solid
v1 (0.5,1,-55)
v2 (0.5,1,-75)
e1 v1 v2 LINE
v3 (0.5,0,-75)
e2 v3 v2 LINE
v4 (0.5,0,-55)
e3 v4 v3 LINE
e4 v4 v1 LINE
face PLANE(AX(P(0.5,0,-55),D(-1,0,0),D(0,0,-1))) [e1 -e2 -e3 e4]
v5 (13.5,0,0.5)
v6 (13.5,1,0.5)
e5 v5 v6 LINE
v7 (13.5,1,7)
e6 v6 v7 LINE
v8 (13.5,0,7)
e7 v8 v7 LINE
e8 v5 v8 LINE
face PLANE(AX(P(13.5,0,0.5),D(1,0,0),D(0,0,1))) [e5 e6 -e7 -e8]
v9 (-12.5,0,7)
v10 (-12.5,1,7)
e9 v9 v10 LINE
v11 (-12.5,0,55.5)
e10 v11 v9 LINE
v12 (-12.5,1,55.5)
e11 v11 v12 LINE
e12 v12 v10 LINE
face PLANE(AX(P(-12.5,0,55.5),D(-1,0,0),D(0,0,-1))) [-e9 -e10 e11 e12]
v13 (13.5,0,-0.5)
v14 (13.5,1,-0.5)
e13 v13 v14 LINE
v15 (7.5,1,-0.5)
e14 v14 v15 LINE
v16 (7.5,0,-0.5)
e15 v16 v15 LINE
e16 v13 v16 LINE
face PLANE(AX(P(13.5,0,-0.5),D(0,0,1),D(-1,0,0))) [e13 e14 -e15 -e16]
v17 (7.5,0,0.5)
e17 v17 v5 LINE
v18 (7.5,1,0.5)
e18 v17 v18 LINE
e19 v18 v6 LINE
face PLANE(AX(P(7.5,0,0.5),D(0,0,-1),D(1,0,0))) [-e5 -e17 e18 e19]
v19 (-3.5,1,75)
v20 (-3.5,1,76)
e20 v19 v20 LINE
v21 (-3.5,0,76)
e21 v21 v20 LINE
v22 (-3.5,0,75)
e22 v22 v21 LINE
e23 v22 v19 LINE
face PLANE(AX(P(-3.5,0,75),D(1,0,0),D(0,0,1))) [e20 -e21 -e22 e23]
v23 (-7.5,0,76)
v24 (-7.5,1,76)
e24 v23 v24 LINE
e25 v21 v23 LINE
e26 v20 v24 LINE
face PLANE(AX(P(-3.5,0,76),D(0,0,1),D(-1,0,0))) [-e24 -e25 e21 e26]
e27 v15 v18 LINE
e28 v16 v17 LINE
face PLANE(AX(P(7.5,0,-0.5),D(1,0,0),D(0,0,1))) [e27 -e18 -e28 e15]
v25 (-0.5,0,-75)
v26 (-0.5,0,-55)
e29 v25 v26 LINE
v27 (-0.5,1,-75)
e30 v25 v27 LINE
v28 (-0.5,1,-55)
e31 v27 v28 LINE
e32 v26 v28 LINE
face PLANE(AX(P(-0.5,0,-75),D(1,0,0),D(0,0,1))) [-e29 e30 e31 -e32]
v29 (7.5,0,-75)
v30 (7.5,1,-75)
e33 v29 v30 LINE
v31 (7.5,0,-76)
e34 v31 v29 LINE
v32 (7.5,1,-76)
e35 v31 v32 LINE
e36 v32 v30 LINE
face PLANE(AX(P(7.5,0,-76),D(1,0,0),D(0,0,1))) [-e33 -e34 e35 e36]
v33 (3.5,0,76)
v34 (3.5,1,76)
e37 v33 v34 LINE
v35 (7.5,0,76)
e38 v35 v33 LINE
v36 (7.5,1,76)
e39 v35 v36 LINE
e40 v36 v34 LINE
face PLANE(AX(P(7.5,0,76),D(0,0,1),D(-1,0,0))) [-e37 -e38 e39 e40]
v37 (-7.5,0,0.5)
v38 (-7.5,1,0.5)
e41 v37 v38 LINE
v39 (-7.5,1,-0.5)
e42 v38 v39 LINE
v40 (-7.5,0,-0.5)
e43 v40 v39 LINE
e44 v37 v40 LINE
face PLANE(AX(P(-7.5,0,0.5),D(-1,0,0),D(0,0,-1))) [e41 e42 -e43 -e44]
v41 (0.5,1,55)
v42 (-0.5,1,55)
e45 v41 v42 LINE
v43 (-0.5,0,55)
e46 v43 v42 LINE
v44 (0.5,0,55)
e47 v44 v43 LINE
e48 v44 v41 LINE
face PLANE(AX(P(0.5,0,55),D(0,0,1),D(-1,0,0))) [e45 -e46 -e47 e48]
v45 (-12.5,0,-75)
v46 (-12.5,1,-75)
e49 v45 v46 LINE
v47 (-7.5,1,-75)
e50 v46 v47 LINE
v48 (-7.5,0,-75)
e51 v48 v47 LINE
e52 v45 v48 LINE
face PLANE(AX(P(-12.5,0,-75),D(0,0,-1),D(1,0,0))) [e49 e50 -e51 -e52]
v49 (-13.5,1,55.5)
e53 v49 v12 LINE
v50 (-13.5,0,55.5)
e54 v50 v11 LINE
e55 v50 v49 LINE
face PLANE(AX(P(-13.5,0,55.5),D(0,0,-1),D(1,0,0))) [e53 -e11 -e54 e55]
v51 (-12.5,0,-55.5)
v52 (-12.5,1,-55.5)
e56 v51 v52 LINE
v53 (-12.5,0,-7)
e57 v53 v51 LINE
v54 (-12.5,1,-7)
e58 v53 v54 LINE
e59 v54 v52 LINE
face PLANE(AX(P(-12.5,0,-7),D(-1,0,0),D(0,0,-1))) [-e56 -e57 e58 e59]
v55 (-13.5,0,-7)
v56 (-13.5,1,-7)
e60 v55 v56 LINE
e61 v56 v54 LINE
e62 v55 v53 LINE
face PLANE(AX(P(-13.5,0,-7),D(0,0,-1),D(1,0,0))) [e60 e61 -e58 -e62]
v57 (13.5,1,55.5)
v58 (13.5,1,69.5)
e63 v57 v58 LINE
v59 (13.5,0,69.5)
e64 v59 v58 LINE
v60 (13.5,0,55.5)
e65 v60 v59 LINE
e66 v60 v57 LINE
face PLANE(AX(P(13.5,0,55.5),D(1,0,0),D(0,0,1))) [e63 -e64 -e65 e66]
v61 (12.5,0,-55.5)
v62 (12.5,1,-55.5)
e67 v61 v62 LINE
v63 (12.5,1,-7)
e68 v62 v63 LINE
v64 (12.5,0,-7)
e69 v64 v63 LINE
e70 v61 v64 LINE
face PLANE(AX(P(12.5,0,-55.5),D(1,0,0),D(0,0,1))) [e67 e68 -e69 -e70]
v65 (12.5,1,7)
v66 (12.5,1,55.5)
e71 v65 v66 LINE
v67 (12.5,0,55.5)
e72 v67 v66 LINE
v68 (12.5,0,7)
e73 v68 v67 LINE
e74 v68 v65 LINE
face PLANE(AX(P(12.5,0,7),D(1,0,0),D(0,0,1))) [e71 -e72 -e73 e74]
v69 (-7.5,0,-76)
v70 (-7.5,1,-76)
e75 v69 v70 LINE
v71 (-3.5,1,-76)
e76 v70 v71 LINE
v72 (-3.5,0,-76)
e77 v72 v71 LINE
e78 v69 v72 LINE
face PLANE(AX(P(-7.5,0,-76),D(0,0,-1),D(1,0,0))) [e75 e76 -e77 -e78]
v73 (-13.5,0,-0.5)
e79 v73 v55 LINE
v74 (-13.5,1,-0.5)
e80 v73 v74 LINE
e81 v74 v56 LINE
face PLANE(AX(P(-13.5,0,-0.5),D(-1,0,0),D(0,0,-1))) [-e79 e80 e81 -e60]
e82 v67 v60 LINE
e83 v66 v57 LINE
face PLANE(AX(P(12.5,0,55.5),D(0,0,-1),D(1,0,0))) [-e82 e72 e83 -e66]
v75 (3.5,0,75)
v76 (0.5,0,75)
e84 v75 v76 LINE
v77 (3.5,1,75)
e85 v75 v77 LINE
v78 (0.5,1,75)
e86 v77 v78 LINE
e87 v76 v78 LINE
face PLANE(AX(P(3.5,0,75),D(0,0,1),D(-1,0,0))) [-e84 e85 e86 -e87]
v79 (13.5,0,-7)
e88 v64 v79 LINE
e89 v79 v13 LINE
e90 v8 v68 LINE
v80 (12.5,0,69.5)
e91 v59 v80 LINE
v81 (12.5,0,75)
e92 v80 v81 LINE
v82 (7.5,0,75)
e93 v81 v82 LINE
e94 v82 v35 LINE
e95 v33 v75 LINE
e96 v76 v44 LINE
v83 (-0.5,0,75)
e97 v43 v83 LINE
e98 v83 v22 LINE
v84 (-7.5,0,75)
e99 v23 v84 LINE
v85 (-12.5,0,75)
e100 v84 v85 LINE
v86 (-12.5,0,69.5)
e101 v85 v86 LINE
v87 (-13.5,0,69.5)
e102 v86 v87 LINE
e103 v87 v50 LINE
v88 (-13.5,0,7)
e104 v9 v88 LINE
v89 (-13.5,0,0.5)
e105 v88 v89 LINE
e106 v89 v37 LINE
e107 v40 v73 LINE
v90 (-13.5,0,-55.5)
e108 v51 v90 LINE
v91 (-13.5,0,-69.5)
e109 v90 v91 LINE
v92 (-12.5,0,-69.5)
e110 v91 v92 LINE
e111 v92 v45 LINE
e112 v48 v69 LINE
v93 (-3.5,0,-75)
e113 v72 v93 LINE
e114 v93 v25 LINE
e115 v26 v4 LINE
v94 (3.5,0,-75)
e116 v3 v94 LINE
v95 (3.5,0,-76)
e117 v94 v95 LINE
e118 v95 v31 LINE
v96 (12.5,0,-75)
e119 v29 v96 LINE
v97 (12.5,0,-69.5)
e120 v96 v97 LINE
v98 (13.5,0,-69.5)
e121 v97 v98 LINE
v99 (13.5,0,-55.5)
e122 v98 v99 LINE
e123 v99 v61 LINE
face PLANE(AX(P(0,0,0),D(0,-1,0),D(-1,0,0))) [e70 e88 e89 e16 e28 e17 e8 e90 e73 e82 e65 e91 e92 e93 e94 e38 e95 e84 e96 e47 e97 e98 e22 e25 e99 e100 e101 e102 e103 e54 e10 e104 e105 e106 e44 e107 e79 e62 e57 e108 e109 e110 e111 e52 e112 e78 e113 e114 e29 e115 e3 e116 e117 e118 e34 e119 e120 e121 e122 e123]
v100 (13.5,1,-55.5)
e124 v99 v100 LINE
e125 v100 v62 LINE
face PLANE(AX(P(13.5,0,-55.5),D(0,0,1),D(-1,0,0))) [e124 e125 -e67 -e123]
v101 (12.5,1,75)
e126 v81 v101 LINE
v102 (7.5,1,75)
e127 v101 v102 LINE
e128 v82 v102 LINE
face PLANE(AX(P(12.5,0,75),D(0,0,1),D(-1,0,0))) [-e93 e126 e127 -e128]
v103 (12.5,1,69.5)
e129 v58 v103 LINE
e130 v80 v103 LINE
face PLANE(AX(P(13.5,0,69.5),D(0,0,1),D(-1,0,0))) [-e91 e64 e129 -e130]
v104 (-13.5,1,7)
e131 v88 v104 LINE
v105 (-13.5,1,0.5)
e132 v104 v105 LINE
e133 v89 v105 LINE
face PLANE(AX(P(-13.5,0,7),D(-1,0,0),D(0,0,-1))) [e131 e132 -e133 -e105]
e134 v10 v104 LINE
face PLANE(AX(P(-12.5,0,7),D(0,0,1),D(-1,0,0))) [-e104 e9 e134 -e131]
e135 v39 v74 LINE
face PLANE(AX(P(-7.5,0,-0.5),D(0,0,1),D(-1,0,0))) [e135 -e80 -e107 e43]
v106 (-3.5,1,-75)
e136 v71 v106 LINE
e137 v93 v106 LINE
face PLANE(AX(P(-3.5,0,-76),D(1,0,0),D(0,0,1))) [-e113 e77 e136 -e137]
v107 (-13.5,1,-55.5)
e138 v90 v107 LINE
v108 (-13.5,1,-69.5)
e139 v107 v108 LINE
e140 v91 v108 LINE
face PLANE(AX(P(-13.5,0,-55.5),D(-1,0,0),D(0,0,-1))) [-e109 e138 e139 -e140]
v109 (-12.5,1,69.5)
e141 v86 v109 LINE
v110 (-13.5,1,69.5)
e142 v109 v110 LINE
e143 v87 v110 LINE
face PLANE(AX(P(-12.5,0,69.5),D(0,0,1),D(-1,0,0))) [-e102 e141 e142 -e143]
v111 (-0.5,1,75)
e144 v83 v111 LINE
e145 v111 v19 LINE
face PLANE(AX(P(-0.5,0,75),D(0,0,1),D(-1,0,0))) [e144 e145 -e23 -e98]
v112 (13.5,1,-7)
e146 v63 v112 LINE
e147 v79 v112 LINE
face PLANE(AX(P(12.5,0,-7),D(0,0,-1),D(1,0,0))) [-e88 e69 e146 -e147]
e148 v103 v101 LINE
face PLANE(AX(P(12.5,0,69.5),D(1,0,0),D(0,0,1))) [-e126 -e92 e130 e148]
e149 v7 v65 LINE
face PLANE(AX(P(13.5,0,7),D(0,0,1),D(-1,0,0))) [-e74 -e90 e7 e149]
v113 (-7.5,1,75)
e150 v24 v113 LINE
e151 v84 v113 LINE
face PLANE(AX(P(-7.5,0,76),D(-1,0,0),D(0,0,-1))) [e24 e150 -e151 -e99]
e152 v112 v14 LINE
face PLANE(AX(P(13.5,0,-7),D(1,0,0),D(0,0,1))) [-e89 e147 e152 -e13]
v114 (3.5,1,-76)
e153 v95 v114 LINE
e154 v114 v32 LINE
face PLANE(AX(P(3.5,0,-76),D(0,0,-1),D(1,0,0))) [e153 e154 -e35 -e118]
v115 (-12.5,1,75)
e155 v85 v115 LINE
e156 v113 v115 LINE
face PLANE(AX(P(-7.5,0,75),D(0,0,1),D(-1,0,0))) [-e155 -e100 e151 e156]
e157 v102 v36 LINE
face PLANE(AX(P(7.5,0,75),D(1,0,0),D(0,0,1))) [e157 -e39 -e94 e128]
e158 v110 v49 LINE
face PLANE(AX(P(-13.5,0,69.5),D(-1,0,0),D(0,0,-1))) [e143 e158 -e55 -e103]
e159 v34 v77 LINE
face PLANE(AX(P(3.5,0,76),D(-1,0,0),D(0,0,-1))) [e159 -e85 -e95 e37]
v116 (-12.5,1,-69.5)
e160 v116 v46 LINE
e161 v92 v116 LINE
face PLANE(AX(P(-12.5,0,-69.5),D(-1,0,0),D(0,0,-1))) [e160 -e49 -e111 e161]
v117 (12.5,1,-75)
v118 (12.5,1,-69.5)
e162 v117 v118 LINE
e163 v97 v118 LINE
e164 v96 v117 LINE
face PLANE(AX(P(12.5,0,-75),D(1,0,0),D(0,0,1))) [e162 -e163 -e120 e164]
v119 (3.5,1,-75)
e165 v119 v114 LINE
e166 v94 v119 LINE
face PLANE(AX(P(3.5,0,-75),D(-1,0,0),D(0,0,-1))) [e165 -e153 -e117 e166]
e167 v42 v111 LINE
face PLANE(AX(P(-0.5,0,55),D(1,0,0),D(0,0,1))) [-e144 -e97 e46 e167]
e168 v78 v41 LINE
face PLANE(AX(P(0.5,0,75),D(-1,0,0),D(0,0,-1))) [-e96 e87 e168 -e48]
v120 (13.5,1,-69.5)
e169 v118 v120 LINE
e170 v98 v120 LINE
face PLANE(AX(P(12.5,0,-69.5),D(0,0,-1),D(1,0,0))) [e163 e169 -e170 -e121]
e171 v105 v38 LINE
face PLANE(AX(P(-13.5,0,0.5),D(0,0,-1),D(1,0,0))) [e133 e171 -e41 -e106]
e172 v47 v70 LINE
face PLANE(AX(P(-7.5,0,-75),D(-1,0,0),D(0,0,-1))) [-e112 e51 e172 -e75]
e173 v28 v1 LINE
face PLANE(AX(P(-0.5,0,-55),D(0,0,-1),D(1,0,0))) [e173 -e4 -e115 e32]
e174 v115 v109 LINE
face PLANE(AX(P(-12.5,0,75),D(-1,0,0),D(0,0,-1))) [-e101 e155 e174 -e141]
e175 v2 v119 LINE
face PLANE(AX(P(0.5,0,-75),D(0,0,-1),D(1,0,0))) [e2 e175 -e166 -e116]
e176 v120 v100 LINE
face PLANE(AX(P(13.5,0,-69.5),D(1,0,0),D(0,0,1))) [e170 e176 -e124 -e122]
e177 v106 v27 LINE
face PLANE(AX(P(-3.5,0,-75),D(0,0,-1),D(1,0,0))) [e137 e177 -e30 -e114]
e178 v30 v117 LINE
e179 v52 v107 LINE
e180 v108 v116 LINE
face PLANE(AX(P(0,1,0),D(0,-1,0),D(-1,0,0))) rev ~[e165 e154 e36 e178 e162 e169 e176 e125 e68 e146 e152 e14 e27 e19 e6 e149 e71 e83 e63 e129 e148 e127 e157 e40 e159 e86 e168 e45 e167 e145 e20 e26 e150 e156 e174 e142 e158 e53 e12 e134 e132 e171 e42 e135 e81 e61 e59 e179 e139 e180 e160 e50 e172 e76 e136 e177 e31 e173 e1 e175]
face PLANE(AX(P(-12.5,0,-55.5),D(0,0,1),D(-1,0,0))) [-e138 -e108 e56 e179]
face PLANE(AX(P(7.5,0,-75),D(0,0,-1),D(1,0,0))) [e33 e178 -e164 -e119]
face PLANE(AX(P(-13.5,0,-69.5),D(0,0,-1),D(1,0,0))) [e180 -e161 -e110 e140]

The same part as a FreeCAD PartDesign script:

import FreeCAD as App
import Part
import Sketcher

V = App.Vector
Q = App.Units.Quantity


def add_polygon(sketch, points):
    """Adds a closed chain of lines whose ends are joined by coincident constraints."""
    first, n = sketch.GeometryCount, len(points)
    for a, b in zip(points, points[1:] + points[:1]):
        sketch.addGeometry(Part.LineSegment(App.Vector(*a, 0), App.Vector(*b, 0)), False)
    for i in range(n):
        sketch.addConstraint(Sketcher.Constraint("Coincident", first + i, 2, first + (i + 1) % n, 1))

doc = App.newDocument("Part")
params = doc.addObject("Spreadsheet::Sheet", "Params")
for row, (alias, value) in enumerate([
    ("sketch1_width", "5 mm"),
    ("sketch1_width2", "1 mm"),
    ("sketch1_width3", "4 mm"),
    ("sketch1_width4", "3 mm"),
    ("sketch1_height", "14 mm"),
    ("pad1_length", "1 mm"),
], start=1):
    params.set(f"A{row}", alias)
    params.set(f"B{row}", "=" + value)
    params.setAlias(f"B{row}", alias)

body = doc.addObject("PartDesign::Body", "Body")

# Sketch on XZ plane
sketch1 = body.newObject("Sketcher::SketchObject", "Sketch")
sketch1.AttachmentSupport = (doc.getObject("XZ_Plane"), [""])
sketch1.MapMode = "FlatFace"
add_polygon(sketch1, [(-7.5, -75), (-12.5, -75), (-12.5, -69.5), (-13.5, -69.5), (-13.5, -55.5), (-12.5, -55.5), (-12.5, -7), (-13.5, -7), (-13.5, -0.5), (-7.5, -0.5), (-7.5, 0.5), (-13.5, 0.5), (-13.5, 7), (-12.5, 7), (-12.5, 55.5), (-13.5, 55.5), (-13.5, 69.5), (-12.5, 69.5), (-12.5, 75), (-7.5, 75), (-7.5, 76), (-3.5, 76), (-3.5, 75), (-0.5, 75), (-0.5, 55), (0.5, 55), (0.5, 75), (3.5, 75), (3.5, 76), (7.5, 76), (7.5, 75), (12.5, 75), (12.5, 69.5), (13.5, 69.5), (13.5, 55.5), (12.5, 55.5), (12.5, 7), (13.5, 7), (13.5, 0.5), (7.5, 0.5), (7.5, -0.5), (13.5, -0.5), (13.5, -7), (12.5, -7), (12.5, -55.5), (13.5, -55.5), (13.5, -69.5), (12.5, -69.5), (12.5, -75), (7.5, -75), (7.5, -76), (3.5, -76), (3.5, -75), (0.5, -75), (0.5, -55), (-0.5, -55), (-0.5, -75), (-3.5, -75), (-3.5, -76), (-7.5, -76)])  # lines 0-59
sketch1.addConstraint([
    Sketcher.Constraint("Horizontal", 0),
    Sketcher.Constraint("Vertical", 1),
    Sketcher.Constraint("Horizontal", 2),
    Sketcher.Constraint("Vertical", 3),
    Sketcher.Constraint("Horizontal", 4),
    Sketcher.Constraint("Vertical", 5),
    Sketcher.Constraint("Horizontal", 6),
    Sketcher.Constraint("Vertical", 7),
    Sketcher.Constraint("Horizontal", 8),
    Sketcher.Constraint("Vertical", 9),
    Sketcher.Constraint("Horizontal", 10),
    Sketcher.Constraint("Vertical", 11),
    Sketcher.Constraint("Horizontal", 12),
    Sketcher.Constraint("Vertical", 13),
    Sketcher.Constraint("Horizontal", 14),
    Sketcher.Constraint("Vertical", 15),
    Sketcher.Constraint("Horizontal", 16),
    Sketcher.Constraint("Vertical", 17),
    Sketcher.Constraint("Horizontal", 18),
    Sketcher.Constraint("Vertical", 19),
    Sketcher.Constraint("Horizontal", 20),
    Sketcher.Constraint("Vertical", 21),
    Sketcher.Constraint("Horizontal", 22),
    Sketcher.Constraint("Vertical", 23),
    Sketcher.Constraint("Horizontal", 24),
    Sketcher.Constraint("Vertical", 25),
    Sketcher.Constraint("Horizontal", 26),
    Sketcher.Constraint("Vertical", 27),
    Sketcher.Constraint("Horizontal", 28),
    Sketcher.Constraint("Vertical", 29),
    Sketcher.Constraint("Horizontal", 30),
    Sketcher.Constraint("Vertical", 31),
    Sketcher.Constraint("Horizontal", 32),
    Sketcher.Constraint("Vertical", 33),
    Sketcher.Constraint("Horizontal", 34),
    Sketcher.Constraint("Vertical", 35),
    Sketcher.Constraint("Horizontal", 36),
    Sketcher.Constraint("Vertical", 37),
    Sketcher.Constraint("Horizontal", 38),
    Sketcher.Constraint("Vertical", 39),
    Sketcher.Constraint("Horizontal", 40),
    Sketcher.Constraint("Vertical", 41),
    Sketcher.Constraint("Horizontal", 42),
    Sketcher.Constraint("Vertical", 43),
    Sketcher.Constraint("Horizontal", 44),
    Sketcher.Constraint("Vertical", 45),
    Sketcher.Constraint("Horizontal", 46),
    Sketcher.Constraint("Vertical", 47),
    Sketcher.Constraint("Horizontal", 48),
    Sketcher.Constraint("Vertical", 49),
    Sketcher.Constraint("Horizontal", 50),
    Sketcher.Constraint("Vertical", 51),
    Sketcher.Constraint("Horizontal", 52),
    Sketcher.Constraint("Vertical", 53),
    Sketcher.Constraint("Horizontal", 54),
    Sketcher.Constraint("Vertical", 55),
    Sketcher.Constraint("Horizontal", 56),
    Sketcher.Constraint("Vertical", 57),
    Sketcher.Constraint("Horizontal", 58),
    Sketcher.Constraint("Vertical", 59),
    Sketcher.Constraint("Symmetric", 0, 2, 30, 2, -1, 1),
    Sketcher.Constraint("Symmetric", 2, 2, 32, 2, -1, 1),
    Sketcher.Constraint("Symmetric", 4, 2, 34, 2, -1, 1),
    Sketcher.Constraint("Symmetric", 6, 2, 36, 2, -1, 1),
    Sketcher.Constraint("Symmetric", 8, 2, 38, 2, -1, 1),
    Sketcher.Constraint("Symmetric", 10, 2, 40, 2, -1, 1),
    Sketcher.Constraint("Symmetric", 12, 2, 42, 2, -1, 1),
    Sketcher.Constraint("Symmetric", 14, 2, 44, 2, -1, 1),
    Sketcher.Constraint("Symmetric", 16, 2, 46, 2, -1, 1),
    Sketcher.Constraint("Symmetric", 18, 2, 48, 2, -1, 1),
    Sketcher.Constraint("Symmetric", 20, 2, 50, 2, -1, 1),
    Sketcher.Constraint("Symmetric", 22, 2, 52, 2, -1, 1),
    Sketcher.Constraint("Symmetric", 24, 2, 54, 2, -1, 1),
    Sketcher.Constraint("Symmetric", 26, 2, 56, 2, -1, 1),
    Sketcher.Constraint("Symmetric", 28, 2, 58, 2, -1, 1),
    Sketcher.Constraint("Symmetric", 22, 2, 25, 2, -2),
    Sketcher.Constraint("Symmetric", 20, 2, 27, 2, -2),
    Sketcher.Constraint("Symmetric", 18, 2, 29, 2, -2),
    Sketcher.Constraint("Symmetric", 16, 2, 31, 2, -2),
    Sketcher.Constraint("Symmetric", 14, 2, 33, 2, -2),
    Sketcher.Constraint("Symmetric", 12, 2, 35, 2, -2),
    Sketcher.Constraint("Symmetric", 10, 2, 37, 2, -2),
    Sketcher.Constraint("Horizontal", 18, 2, 21, 2),
    Sketcher.Constraint("Vertical", 1, 2, 4, 2),
    Sketcher.Constraint("Vertical", 3, 2, 6, 2),
    Sketcher.Constraint("Vertical", 9, 2, 18, 2),
    Sketcher.Constraint("Equal", 16, 24),
    Sketcher.Constraint("Equal", 54, 9),
    Sketcher.Constraint("Equal", 9, 19),
    Sketcher.Constraint("DistanceX", 0, 2, 0, 1, Q("5 mm")),
    Sketcher.Constraint("DistanceX", 2, 2, 2, 1, Q("1 mm")),
    Sketcher.Constraint("DistanceX", 20, 1, 20, 2, Q("4 mm")),
    Sketcher.Constraint("DistanceX", 22, 1, 22, 2, Q("3 mm")),
    Sketcher.Constraint("DistanceY", 3, 1, 3, 2, Q("14 mm")),
    Sketcher.Constraint("DistanceY", 23, 2, 23, 1, Q("20 mm")),
    Sketcher.Constraint("DistanceY", 1, 1, 1, 2, Q("5.5 mm")),
    Sketcher.Constraint("DistanceY", 5, 1, 5, 2, Q("48.5 mm")),
    Sketcher.Constraint("DistanceY", 7, 1, 7, 2, Q("6.5 mm")),
])
sketch1.setExpression("Constraints[149]", "Params.sketch1_width")
sketch1.setExpression("Constraints[150]", "Params.sketch1_width2")
sketch1.setExpression("Constraints[151]", "Params.sketch1_width3")
sketch1.setExpression("Constraints[152]", "Params.sketch1_width4")
sketch1.setExpression("Constraints[153]", "Params.sketch1_height")
pad1 = body.newObject("PartDesign::Pad", "Pad")
pad1.Profile = sketch1
pad1.setExpression("Length", "Params.pad1_length")
pad1.Reversed = True

doc.recompute()
